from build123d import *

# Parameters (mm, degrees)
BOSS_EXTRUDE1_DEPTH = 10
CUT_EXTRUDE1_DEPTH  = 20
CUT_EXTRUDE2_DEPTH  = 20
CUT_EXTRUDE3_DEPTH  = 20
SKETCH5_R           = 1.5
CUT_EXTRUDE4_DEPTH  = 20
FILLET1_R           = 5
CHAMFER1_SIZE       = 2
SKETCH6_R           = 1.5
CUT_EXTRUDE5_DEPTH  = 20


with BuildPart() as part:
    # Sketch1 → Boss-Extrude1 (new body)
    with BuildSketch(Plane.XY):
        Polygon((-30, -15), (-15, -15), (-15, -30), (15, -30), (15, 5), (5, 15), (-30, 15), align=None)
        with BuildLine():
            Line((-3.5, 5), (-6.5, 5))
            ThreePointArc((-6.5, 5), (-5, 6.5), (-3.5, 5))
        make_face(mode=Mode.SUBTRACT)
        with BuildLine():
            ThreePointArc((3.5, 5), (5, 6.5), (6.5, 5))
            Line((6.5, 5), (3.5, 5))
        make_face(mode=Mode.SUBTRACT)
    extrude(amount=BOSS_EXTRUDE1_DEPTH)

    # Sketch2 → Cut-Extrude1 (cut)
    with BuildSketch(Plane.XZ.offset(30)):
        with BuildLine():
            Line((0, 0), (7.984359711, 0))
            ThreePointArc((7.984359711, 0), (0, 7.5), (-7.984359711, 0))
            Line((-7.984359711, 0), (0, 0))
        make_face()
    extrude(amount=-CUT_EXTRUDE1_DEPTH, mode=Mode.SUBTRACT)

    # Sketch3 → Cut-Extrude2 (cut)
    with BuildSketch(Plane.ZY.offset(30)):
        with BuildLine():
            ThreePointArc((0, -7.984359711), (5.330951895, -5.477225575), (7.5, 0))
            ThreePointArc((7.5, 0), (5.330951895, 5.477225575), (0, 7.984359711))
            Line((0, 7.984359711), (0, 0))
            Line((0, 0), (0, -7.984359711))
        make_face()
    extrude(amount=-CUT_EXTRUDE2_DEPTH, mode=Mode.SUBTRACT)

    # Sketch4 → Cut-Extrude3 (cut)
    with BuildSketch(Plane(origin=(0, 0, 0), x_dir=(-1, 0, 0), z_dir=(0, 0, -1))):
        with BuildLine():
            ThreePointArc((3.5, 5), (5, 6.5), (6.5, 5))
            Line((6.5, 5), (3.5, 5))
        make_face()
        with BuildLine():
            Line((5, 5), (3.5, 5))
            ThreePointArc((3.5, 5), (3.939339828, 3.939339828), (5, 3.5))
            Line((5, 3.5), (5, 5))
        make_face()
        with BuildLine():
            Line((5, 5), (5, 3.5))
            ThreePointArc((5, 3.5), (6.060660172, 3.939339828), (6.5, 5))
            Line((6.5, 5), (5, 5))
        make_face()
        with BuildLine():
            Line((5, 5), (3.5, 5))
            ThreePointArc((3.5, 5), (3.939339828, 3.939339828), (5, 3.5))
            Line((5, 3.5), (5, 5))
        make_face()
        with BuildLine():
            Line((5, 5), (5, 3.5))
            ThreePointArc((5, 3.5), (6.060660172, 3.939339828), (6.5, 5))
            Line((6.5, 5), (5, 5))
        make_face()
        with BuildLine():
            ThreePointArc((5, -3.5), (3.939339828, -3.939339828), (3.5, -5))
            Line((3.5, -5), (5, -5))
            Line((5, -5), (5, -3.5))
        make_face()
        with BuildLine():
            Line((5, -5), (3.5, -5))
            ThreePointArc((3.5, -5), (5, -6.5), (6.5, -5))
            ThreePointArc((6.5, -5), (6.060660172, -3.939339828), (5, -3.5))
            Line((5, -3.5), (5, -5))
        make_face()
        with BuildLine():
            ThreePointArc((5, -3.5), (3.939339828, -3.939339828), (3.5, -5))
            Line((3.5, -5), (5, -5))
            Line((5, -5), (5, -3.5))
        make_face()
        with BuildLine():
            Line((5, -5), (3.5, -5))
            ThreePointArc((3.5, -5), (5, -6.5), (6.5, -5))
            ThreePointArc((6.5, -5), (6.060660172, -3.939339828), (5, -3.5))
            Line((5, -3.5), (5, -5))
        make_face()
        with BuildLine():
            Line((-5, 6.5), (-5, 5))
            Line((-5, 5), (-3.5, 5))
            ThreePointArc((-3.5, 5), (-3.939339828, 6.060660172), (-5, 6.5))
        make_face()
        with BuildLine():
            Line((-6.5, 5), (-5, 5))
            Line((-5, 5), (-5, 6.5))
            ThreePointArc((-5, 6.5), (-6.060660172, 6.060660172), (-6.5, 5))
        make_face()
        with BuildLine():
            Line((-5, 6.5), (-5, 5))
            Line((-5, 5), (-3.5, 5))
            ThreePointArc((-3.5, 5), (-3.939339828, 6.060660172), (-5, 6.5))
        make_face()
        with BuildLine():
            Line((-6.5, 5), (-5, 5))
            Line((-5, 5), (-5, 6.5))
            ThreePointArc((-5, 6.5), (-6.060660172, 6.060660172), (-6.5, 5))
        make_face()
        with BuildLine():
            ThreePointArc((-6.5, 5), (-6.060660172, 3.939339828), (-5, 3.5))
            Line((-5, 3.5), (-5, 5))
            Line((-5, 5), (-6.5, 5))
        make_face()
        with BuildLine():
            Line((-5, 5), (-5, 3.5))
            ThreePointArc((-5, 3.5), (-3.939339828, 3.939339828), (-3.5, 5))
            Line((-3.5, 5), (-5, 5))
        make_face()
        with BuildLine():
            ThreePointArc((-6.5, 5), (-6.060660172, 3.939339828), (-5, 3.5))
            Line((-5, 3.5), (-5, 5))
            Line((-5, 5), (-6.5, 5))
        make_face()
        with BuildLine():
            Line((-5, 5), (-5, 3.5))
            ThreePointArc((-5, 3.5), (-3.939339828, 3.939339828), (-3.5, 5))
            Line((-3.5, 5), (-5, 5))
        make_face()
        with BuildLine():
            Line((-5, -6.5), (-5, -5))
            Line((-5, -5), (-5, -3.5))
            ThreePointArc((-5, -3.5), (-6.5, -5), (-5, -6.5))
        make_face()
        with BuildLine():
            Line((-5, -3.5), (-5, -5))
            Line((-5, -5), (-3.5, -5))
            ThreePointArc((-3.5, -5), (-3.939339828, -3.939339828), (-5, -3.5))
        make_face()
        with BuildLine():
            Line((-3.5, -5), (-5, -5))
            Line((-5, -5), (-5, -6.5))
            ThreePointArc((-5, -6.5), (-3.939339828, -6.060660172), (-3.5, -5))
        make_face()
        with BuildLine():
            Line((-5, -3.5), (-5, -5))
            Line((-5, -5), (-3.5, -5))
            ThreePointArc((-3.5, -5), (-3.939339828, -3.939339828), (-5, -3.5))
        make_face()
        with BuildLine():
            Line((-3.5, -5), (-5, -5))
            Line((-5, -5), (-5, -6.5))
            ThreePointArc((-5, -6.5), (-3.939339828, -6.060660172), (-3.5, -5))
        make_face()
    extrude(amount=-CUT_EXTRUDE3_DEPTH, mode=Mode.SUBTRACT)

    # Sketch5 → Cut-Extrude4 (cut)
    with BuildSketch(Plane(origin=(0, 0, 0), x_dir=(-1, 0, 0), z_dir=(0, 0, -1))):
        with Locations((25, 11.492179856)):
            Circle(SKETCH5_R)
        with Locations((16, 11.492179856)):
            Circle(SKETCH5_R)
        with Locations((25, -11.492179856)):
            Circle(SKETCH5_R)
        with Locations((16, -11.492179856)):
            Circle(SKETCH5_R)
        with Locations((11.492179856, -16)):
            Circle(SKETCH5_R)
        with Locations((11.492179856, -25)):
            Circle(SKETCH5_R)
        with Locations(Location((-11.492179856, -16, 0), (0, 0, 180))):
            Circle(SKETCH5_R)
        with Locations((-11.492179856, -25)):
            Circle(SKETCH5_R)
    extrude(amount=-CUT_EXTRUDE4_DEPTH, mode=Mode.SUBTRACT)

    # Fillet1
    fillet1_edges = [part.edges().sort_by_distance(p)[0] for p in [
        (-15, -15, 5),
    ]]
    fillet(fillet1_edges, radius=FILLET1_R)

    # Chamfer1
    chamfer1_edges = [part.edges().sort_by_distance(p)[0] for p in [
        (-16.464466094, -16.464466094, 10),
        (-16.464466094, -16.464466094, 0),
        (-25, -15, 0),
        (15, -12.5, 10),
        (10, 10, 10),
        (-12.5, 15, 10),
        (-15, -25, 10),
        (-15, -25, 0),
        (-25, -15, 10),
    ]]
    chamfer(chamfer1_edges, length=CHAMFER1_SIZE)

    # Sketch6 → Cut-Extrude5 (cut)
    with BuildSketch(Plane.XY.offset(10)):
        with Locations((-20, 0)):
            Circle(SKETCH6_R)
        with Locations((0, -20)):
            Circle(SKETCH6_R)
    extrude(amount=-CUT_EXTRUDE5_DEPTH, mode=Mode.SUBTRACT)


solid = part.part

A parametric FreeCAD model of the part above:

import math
import FreeCAD as App
import Part
import Sketcher


def edges_at(feature, points):
    """Names of the edges that pass closest to the given points."""
    edges = feature.Shape.Edges
    near = lambda p: min(range(len(edges)), key=lambda i: edges[i].distToShape(Part.Vertex(*p))[0])
    return sorted({f"Edge{near(p) + 1}" for p in points})

doc = App.newDocument("Part")
body = doc.addObject("PartDesign::Body", "Body")

sketch1 = body.newObject("Sketcher::SketchObject", "Sketch")
sketch1.AttachmentSupport = (doc.getObject("XY_Plane"), [""])
sketch1.MapMode = "FlatFace"
sketch1.addGeometry([
    Part.LineSegment(App.Vector(-30, -15, 0), App.Vector(-15, -15, 0)),
    Part.LineSegment(App.Vector(-15, -15, 0), App.Vector(-15, -30, 0)),
    Part.LineSegment(App.Vector(-15, -30, 0), App.Vector(15, -30, 0)),
    Part.LineSegment(App.Vector(15, -30, 0), App.Vector(15, 5, 0)),
    Part.LineSegment(App.Vector(15, 5, 0), App.Vector(5, 15, 0)),
    Part.LineSegment(App.Vector(5, 15, 0), App.Vector(-30, 15, 0)),
    Part.LineSegment(App.Vector(-30, 15, 0), App.Vector(-30, -15, 0)),
    Part.ArcOfCircle(Part.Circle(App.Vector(-5, 5, 0), App.Vector(0, 0, 1), 1.5), math.radians(0), math.radians(180)),
    Part.LineSegment(App.Vector(-3.5, 5, 0), App.Vector(-6.5, 5, 0)),
    Part.LineSegment(App.Vector(6.5, 5, 0), App.Vector(3.5, 5, 0)),
    Part.ArcOfCircle(Part.Circle(App.Vector(5, 5, 0), App.Vector(0, 0, 1), 1.5), math.radians(0), math.radians(180)),
], False)
sketch1.addConstraint([
    Sketcher.Constraint("Coincident", 0, 2, 1, 1),
    Sketcher.Constraint("Coincident", 1, 2, 2, 1),
    Sketcher.Constraint("Coincident", 2, 2, 3, 1),
    Sketcher.Constraint("Coincident", 3, 2, 4, 1),
    Sketcher.Constraint("Coincident", 4, 2, 5, 1),
    Sketcher.Constraint("Coincident", 5, 2, 6, 1),
    Sketcher.Constraint("Coincident", 6, 2, 0, 1),
    Sketcher.Constraint("Coincident", 7, 1, 8, 1),
    Sketcher.Constraint("Coincident", 8, 2, 7, 2),
    Sketcher.Constraint("Coincident", 9, 1, 10, 1),
    Sketcher.Constraint("Coincident", 10, 2, 9, 2),
    Sketcher.Constraint("Horizontal", 0),
    Sketcher.Constraint("Vertical", 1),
    Sketcher.Constraint("Horizontal", 2),
    Sketcher.Constraint("Vertical", 3),
    Sketcher.Constraint("Horizontal", 5),
    Sketcher.Constraint("Vertical", 6),
    Sketcher.Constraint("Horizontal", 8),
    Sketcher.Constraint("Horizontal", 9),
    Sketcher.Constraint("Equal", 7, 10),
    Sketcher.Constraint("Symmetric", 7, 3, 10, 3, -2),
    Sketcher.Constraint("Horizontal", 10, 3, 3, 2),
    Sketcher.Constraint("Horizontal", 3, 2, 7, 1),
    Sketcher.Constraint("Horizontal", 8, 2, 9, 1),
    Sketcher.Constraint("Vertical", 10, 3, 4, 2),
    Sketcher.Constraint("Equal", 0, 1),
    Sketcher.Constraint("Equal", 5, 3),
    Sketcher.Constraint("Equal", 2, 6),
    Sketcher.Constraint("Radius", 7, 1.5),
    Sketcher.Constraint("DistanceX", 0, 1, 0, 2, 15.0),
    Sketcher.Constraint("DistanceX", 2, 1, 2, 2, 30.0),
    Sketcher.Constraint("DistanceX", 5, 2, 5, 1, 35.0),
    Sketcher.Constraint("DistanceX", 7, 3, -1, 1, 5.0),
    Sketcher.Constraint("DistanceY", -1, 1, 7, 3, 5.0),
])
pad1 = body.newObject("PartDesign::Pad", "Pad")
pad1.Profile = sketch1
pad1.Length = 10

sketch2 = body.newObject("Sketcher::SketchObject", "Sketch001")
sketch2.AttachmentSupport = (doc.getObject("XZ_Plane"), [""])
sketch2.MapMode = "FlatFace"
sketch2.AttachmentOffset = App.Placement(App.Vector(0, 0, 30), App.Rotation())
sketch2.addGeometry([
    Part.ArcOfCircle(Part.Circle(App.Vector(0, 0, 0), App.Vector(0, 0, 1), 8), math.radians(4), math.radians(176)),
    Part.LineSegment(App.Vector(-8, 0, 0), App.Vector(8, 0, 0)),
], False)
sketch2.addConstraint([
    Sketcher.Constraint("Coincident", 0, 1, 1, 2),
    Sketcher.Constraint("Coincident", 1, 1, 0, 2),
    Sketcher.Constraint("Horizontal", 1),
    Sketcher.Constraint("Symmetric", 0, 1, 1, 1, -1, 1),
    Sketcher.Constraint("Radius", 0, 8.0),
    Sketcher.Constraint("DistanceY", 0, 3, -1, 1, 0.5),
])
pocket1 = body.newObject("PartDesign::Pocket", "Pocket")
pocket1.Profile = sketch2
pocket1.Length = 20

sketch3 = body.newObject("Sketcher::SketchObject", "Sketch002")
sketch3.AttachmentSupport = (doc.getObject("YZ_Plane"), [""])
sketch3.MapMode = "FlatFace"
sketch3.AttachmentOffset = App.Placement(App.Vector(0, 0, -30), App.Rotation())
sketch3.addGeometry([
    Part.ArcOfCircle(Part.Circle(App.Vector(0, 0, 0), App.Vector(0, 0, 1), 8), math.radians(90), math.radians(176)),
    Part.ArcOfCircle(Part.Circle(App.Vector(0, 0, 0), App.Vector(0, 0, 1), 8), math.radians(4), math.radians(90)),
    Part.LineSegment(App.Vector(8, 0, 0), App.Vector(-8, 0, 0)),
], False)
sketch3.addConstraint([
    Sketcher.Constraint("Tangent", 0, 1, 1, 2),
    Sketcher.Constraint("Coincident", 1, 1, 2, 1),
    Sketcher.Constraint("Coincident", 2, 2, 0, 2),
    Sketcher.Constraint("Horizontal", 2),
    Sketcher.Constraint("Equal", 0, 1),
    Sketcher.Constraint("Symmetric", 1, 1, 2, 2, -1, 1),
    Sketcher.Constraint("PointOnObject", 0, 1, -2),
    Sketcher.Constraint("Radius", 0, 8.0),
    Sketcher.Constraint("DistanceY", 0, 3, -1, 1, 0.5),
])
pocket2 = body.newObject("PartDesign::Pocket", "Pocket001")
pocket2.Profile = sketch3
pocket2.Length = 20
pocket2.Reversed = True

sketch4 = body.newObject("Sketcher::SketchObject", "Sketch003")
sketch4.AttachmentSupport = (doc.getObject("XY_Plane"), [""])
sketch4.MapMode = "FlatFace"
sketch4.addGeometry([
    Part.ArcOfCircle(Part.Circle(App.Vector(-5, 5, 0), App.Vector(0, 0, 1), 1.5), math.radians(0), math.radians(180)),
    Part.ArcOfCircle(Part.Circle(App.Vector(-5, 5, 0), App.Vector(0, 0, 1), 1.5), math.radians(-90), math.radians(0)),
    Part.ArcOfCircle(Part.Circle(App.Vector(-5, 5, 0), App.Vector(0, 0, 1), 1.5), math.radians(180), math.radians(270)),
    Part.ArcOfCircle(Part.Circle(App.Vector(-5, -5, 0), App.Vector(0, 0, 1), 1.5), math.radians(0), math.radians(90)),
    Part.ArcOfCircle(Part.Circle(App.Vector(-5, -5, 0), App.Vector(0, 0, 1), 1.5), math.radians(180), math.radians(360)),
    Part.ArcOfCircle(Part.Circle(App.Vector(-5, -5, 0), App.Vector(0, 0, 1), 1.5), math.radians(90), math.radians(180)),
    Part.ArcOfCircle(Part.Circle(App.Vector(5, 5, 0), App.Vector(0, 0, 1), 1.5), math.radians(180), math.radians(270)),
    Part.ArcOfCircle(Part.Circle(App.Vector(5, 5, 0), App.Vector(0, 0, 1), 1.5), math.radians(90), math.radians(180)),
    Part.ArcOfCircle(Part.Circle(App.Vector(5, 5, 0), App.Vector(0, 0, 1), 1.5), math.radians(0), math.radians(90)),
    Part.ArcOfCircle(Part.Circle(App.Vector(5, 5, 0), App.Vector(0, 0, 1), 1.5), math.radians(-90), math.radians(0)),
    Part.ArcOfCircle(Part.Circle(App.Vector(5, -5, 0), App.Vector(0, 0, 1), 1.5), math.radians(-90), math.radians(90)),
    Part.ArcOfCircle(Part.Circle(App.Vector(5, -5, 0), App.Vector(0, 0, 1), 1.5), math.radians(180), math.radians(270)),
    Part.ArcOfCircle(Part.Circle(App.Vector(5, -5, 0), App.Vector(0, 0, 1), 1.5), math.radians(90), math.radians(180)),
], False)
sketch4.addConstraint([
    Sketcher.Constraint("Tangent", 0, 1, 1, 2),
    Sketcher.Constraint("Tangent", 1, 1, 2, 2),
    Sketcher.Constraint("Tangent", 2, 1, 0, 2),
    Sketcher.Constraint("Tangent", 3, 1, 4, 2),
    Sketcher.Constraint("Tangent", 4, 1, 5, 2),
    Sketcher.Constraint("Tangent", 5, 1, 3, 2),
    Sketcher.Constraint("Tangent", 6, 1, 7, 2),
    Sketcher.Constraint("Tangent", 7, 1, 8, 2),
    Sketcher.Constraint("Tangent", 8, 1, 9, 2),
    Sketcher.Constraint("Tangent", 9, 1, 6, 2),
    Sketcher.Constraint("Tangent", 10, 1, 11, 2),
    Sketcher.Constraint("Tangent", 11, 1, 12, 2),
    Sketcher.Constraint("Tangent", 12, 1, 10, 2),
    Sketcher.Constraint("Equal", 2, 3),
    Sketcher.Constraint("Equal", 5, 6),
    Sketcher.Constraint("Equal", 6, 7),
    Sketcher.Constraint("Equal", 9, 10),
    Sketcher.Constraint("Symmetric", 3, 3, 6, 3, -1, 1),
    Sketcher.Constraint("Symmetric", 0, 3, 10, 3, -1, 1),
    Sketcher.Constraint("Symmetric", 0, 3, 6, 3, -2),
    Sketcher.Constraint("Horizontal", 9, 3, 0, 1),
    Sketcher.Constraint("Horizontal", 0, 1, 2, 1),
    Sketcher.Constraint("Horizontal", 12, 3, 3, 1),
    Sketcher.Constraint("Horizontal", 3, 1, 4, 1),
    Sketcher.Constraint("Horizontal", 2, 1, 6, 1),
    Sketcher.Constraint("Horizontal", 6, 1, 8, 1),
    Sketcher.Constraint("Horizontal", 4, 1, 11, 1),
    Sketcher.Constraint("Vertical", 5, 3, 1, 1),
    Sketcher.Constraint("Vertical", 1, 1, 5, 1),
    Sketcher.Constraint("Vertical", 12, 3, 7, 1),
    Sketcher.Constraint("Vertical", 7, 1, 9, 1),
    Sketcher.Constraint("Vertical", 9, 1, 10, 1),
    Sketcher.Constraint("Vertical", 10, 1, 12, 1),
    Sketcher.Constraint("Radius", 0, 1.5),
    Sketcher.Constraint("DistanceX", 0, 3, -1, 1, 5.0),
    Sketcher.Constraint("DistanceY", -1, 1, 0, 3, 5.0),
])
pocket3 = body.newObject("PartDesign::Pocket", "Pocket002")
pocket3.Profile = sketch4
pocket3.Length = 20
pocket3.Reversed = True

sketch5 = body.newObject("Sketcher::SketchObject", "Sketch004")
sketch5.AttachmentSupport = (doc.getObject("XY_Plane"), [""])
sketch5.MapMode = "FlatFace"
sketch5.addGeometry([
    Part.Circle(App.Vector(-25, 11.5, 0), App.Vector(0, 0, 1), 1.5),
    Part.Circle(App.Vector(-16, 11.5, 0), App.Vector(0, 0, 1), 1.5),
    Part.Circle(App.Vector(-25, -11.5, 0), App.Vector(0, 0, 1), 1.5),
    Part.Circle(App.Vector(-16, -11.5, 0), App.Vector(0, 0, 1), 1.5),
    Part.Circle(App.Vector(-11.5, -16, 0), App.Vector(0, 0, 1), 1.5),
    Part.Circle(App.Vector(-11.5, -25, 0), App.Vector(0, 0, 1), 1.5),
    Part.Circle(App.Vector(11.5, -16, 0), App.Vector(0, 0, 1), 1.5),
    Part.Circle(App.Vector(11.5, -25, 0), App.Vector(0, 0, 1), 1.5),
], False)
sketch5.addConstraint([
    Sketcher.Constraint("Equal", 0, 1),
    Sketcher.Constraint("Equal", 1, 2),
    Sketcher.Constraint("Equal", 2, 3),
    Sketcher.Constraint("Equal", 3, 4),
    Sketcher.Constraint("Equal", 4, 5),
    Sketcher.Constraint("Equal", 5, 6),
    Sketcher.Constraint("Equal", 6, 7),
    Sketcher.Constraint("Symmetric", 4, 3, 6, 3, -2),
    Sketcher.Constraint("Symmetric", 5, 3, 7, 3, -2),
    Sketcher.Constraint("Symmetric", 0, 3, 2, 3, -1),
    Sketcher.Constraint("Symmetric", 1, 3, 3, 3, -1),
    Sketcher.Constraint("Horizontal", 0, 3, 1, 3),
    Sketcher.Constraint("Vertical", 4, 3, 5, 3),
    Sketcher.Constraint("Diameter", 0, 3.0),
    Sketcher.Constraint("DistanceX", 0, 3, -1, 1, 25.0),
    Sketcher.Constraint("DistanceX", 1, 3, -1, 1, 16.0),
    Sketcher.Constraint("DistanceY", 4, 3, -1, 1, 16.0),
    Sketcher.Constraint("DistanceY", 5, 3, -1, 1, 25.0),
    Sketcher.Constraint("DistanceY", -1, 1, 0, 3, 11.49218),
    Sketcher.Constraint("DistanceX", 4, 3, -1, 1, 11.49218),
])
pocket4 = body.newObject("PartDesign::Pocket", "Pocket003")
pocket4.Profile = sketch5
pocket4.Length = 20
pocket4.Reversed = True
doc.recompute()

fillet = body.newObject("PartDesign::Fillet", "Fillet")
fillet.Base = (pocket4, edges_at(pocket4, [(-15, -15, 5)]))
fillet.Radius = 5
doc.recompute()

chamfer = body.newObject("PartDesign::Chamfer", "Chamfer")
chamfer.Base = (fillet, edges_at(fillet, [
    (-16.464, -16.464, 10),
    (-16.464, -16.464, 0),
    (-25, -15, 0),
    (15, -12.5, 10),
    (10, 10, 10),
    (-12.5, 15, 10),
    (-15, -25, 10),
    (-15, -25, 0),
    (-25, -15, 10),
]))
chamfer.Size = 2

sketch6 = body.newObject("Sketcher::SketchObject", "Sketch005")
sketch6.AttachmentSupport = (doc.getObject("XY_Plane"), [""])
sketch6.MapMode = "FlatFace"
sketch6.AttachmentOffset = App.Placement(App.Vector(0, 0, 10), App.Rotation())
sketch6.addGeometry([
    Part.Circle(App.Vector(-20, 0, 0), App.Vector(0, 0, 1), 1.5),
    Part.Circle(App.Vector(0, -20, 0), App.Vector(0, 0, 1), 1.5),
], False)
sketch6.addConstraint([
    Sketcher.Constraint("Equal", 0, 1),
    Sketcher.Constraint("PointOnObject", 0, 3, -1),
    Sketcher.Constraint("PointOnObject", 1, 3, -2),
    Sketcher.Constraint("Diameter", 0, 3.0),
    Sketcher.Constraint("DistanceX", 0, 3, -1, 1, 20.0),
    Sketcher.Constraint("DistanceY", 1, 3, -1, 1, 20.0),
])
pocket5 = body.newObject("PartDesign::Pocket", "Pocket004")
pocket5.Profile = sketch6
pocket5.Length = 20

doc.recompute()
